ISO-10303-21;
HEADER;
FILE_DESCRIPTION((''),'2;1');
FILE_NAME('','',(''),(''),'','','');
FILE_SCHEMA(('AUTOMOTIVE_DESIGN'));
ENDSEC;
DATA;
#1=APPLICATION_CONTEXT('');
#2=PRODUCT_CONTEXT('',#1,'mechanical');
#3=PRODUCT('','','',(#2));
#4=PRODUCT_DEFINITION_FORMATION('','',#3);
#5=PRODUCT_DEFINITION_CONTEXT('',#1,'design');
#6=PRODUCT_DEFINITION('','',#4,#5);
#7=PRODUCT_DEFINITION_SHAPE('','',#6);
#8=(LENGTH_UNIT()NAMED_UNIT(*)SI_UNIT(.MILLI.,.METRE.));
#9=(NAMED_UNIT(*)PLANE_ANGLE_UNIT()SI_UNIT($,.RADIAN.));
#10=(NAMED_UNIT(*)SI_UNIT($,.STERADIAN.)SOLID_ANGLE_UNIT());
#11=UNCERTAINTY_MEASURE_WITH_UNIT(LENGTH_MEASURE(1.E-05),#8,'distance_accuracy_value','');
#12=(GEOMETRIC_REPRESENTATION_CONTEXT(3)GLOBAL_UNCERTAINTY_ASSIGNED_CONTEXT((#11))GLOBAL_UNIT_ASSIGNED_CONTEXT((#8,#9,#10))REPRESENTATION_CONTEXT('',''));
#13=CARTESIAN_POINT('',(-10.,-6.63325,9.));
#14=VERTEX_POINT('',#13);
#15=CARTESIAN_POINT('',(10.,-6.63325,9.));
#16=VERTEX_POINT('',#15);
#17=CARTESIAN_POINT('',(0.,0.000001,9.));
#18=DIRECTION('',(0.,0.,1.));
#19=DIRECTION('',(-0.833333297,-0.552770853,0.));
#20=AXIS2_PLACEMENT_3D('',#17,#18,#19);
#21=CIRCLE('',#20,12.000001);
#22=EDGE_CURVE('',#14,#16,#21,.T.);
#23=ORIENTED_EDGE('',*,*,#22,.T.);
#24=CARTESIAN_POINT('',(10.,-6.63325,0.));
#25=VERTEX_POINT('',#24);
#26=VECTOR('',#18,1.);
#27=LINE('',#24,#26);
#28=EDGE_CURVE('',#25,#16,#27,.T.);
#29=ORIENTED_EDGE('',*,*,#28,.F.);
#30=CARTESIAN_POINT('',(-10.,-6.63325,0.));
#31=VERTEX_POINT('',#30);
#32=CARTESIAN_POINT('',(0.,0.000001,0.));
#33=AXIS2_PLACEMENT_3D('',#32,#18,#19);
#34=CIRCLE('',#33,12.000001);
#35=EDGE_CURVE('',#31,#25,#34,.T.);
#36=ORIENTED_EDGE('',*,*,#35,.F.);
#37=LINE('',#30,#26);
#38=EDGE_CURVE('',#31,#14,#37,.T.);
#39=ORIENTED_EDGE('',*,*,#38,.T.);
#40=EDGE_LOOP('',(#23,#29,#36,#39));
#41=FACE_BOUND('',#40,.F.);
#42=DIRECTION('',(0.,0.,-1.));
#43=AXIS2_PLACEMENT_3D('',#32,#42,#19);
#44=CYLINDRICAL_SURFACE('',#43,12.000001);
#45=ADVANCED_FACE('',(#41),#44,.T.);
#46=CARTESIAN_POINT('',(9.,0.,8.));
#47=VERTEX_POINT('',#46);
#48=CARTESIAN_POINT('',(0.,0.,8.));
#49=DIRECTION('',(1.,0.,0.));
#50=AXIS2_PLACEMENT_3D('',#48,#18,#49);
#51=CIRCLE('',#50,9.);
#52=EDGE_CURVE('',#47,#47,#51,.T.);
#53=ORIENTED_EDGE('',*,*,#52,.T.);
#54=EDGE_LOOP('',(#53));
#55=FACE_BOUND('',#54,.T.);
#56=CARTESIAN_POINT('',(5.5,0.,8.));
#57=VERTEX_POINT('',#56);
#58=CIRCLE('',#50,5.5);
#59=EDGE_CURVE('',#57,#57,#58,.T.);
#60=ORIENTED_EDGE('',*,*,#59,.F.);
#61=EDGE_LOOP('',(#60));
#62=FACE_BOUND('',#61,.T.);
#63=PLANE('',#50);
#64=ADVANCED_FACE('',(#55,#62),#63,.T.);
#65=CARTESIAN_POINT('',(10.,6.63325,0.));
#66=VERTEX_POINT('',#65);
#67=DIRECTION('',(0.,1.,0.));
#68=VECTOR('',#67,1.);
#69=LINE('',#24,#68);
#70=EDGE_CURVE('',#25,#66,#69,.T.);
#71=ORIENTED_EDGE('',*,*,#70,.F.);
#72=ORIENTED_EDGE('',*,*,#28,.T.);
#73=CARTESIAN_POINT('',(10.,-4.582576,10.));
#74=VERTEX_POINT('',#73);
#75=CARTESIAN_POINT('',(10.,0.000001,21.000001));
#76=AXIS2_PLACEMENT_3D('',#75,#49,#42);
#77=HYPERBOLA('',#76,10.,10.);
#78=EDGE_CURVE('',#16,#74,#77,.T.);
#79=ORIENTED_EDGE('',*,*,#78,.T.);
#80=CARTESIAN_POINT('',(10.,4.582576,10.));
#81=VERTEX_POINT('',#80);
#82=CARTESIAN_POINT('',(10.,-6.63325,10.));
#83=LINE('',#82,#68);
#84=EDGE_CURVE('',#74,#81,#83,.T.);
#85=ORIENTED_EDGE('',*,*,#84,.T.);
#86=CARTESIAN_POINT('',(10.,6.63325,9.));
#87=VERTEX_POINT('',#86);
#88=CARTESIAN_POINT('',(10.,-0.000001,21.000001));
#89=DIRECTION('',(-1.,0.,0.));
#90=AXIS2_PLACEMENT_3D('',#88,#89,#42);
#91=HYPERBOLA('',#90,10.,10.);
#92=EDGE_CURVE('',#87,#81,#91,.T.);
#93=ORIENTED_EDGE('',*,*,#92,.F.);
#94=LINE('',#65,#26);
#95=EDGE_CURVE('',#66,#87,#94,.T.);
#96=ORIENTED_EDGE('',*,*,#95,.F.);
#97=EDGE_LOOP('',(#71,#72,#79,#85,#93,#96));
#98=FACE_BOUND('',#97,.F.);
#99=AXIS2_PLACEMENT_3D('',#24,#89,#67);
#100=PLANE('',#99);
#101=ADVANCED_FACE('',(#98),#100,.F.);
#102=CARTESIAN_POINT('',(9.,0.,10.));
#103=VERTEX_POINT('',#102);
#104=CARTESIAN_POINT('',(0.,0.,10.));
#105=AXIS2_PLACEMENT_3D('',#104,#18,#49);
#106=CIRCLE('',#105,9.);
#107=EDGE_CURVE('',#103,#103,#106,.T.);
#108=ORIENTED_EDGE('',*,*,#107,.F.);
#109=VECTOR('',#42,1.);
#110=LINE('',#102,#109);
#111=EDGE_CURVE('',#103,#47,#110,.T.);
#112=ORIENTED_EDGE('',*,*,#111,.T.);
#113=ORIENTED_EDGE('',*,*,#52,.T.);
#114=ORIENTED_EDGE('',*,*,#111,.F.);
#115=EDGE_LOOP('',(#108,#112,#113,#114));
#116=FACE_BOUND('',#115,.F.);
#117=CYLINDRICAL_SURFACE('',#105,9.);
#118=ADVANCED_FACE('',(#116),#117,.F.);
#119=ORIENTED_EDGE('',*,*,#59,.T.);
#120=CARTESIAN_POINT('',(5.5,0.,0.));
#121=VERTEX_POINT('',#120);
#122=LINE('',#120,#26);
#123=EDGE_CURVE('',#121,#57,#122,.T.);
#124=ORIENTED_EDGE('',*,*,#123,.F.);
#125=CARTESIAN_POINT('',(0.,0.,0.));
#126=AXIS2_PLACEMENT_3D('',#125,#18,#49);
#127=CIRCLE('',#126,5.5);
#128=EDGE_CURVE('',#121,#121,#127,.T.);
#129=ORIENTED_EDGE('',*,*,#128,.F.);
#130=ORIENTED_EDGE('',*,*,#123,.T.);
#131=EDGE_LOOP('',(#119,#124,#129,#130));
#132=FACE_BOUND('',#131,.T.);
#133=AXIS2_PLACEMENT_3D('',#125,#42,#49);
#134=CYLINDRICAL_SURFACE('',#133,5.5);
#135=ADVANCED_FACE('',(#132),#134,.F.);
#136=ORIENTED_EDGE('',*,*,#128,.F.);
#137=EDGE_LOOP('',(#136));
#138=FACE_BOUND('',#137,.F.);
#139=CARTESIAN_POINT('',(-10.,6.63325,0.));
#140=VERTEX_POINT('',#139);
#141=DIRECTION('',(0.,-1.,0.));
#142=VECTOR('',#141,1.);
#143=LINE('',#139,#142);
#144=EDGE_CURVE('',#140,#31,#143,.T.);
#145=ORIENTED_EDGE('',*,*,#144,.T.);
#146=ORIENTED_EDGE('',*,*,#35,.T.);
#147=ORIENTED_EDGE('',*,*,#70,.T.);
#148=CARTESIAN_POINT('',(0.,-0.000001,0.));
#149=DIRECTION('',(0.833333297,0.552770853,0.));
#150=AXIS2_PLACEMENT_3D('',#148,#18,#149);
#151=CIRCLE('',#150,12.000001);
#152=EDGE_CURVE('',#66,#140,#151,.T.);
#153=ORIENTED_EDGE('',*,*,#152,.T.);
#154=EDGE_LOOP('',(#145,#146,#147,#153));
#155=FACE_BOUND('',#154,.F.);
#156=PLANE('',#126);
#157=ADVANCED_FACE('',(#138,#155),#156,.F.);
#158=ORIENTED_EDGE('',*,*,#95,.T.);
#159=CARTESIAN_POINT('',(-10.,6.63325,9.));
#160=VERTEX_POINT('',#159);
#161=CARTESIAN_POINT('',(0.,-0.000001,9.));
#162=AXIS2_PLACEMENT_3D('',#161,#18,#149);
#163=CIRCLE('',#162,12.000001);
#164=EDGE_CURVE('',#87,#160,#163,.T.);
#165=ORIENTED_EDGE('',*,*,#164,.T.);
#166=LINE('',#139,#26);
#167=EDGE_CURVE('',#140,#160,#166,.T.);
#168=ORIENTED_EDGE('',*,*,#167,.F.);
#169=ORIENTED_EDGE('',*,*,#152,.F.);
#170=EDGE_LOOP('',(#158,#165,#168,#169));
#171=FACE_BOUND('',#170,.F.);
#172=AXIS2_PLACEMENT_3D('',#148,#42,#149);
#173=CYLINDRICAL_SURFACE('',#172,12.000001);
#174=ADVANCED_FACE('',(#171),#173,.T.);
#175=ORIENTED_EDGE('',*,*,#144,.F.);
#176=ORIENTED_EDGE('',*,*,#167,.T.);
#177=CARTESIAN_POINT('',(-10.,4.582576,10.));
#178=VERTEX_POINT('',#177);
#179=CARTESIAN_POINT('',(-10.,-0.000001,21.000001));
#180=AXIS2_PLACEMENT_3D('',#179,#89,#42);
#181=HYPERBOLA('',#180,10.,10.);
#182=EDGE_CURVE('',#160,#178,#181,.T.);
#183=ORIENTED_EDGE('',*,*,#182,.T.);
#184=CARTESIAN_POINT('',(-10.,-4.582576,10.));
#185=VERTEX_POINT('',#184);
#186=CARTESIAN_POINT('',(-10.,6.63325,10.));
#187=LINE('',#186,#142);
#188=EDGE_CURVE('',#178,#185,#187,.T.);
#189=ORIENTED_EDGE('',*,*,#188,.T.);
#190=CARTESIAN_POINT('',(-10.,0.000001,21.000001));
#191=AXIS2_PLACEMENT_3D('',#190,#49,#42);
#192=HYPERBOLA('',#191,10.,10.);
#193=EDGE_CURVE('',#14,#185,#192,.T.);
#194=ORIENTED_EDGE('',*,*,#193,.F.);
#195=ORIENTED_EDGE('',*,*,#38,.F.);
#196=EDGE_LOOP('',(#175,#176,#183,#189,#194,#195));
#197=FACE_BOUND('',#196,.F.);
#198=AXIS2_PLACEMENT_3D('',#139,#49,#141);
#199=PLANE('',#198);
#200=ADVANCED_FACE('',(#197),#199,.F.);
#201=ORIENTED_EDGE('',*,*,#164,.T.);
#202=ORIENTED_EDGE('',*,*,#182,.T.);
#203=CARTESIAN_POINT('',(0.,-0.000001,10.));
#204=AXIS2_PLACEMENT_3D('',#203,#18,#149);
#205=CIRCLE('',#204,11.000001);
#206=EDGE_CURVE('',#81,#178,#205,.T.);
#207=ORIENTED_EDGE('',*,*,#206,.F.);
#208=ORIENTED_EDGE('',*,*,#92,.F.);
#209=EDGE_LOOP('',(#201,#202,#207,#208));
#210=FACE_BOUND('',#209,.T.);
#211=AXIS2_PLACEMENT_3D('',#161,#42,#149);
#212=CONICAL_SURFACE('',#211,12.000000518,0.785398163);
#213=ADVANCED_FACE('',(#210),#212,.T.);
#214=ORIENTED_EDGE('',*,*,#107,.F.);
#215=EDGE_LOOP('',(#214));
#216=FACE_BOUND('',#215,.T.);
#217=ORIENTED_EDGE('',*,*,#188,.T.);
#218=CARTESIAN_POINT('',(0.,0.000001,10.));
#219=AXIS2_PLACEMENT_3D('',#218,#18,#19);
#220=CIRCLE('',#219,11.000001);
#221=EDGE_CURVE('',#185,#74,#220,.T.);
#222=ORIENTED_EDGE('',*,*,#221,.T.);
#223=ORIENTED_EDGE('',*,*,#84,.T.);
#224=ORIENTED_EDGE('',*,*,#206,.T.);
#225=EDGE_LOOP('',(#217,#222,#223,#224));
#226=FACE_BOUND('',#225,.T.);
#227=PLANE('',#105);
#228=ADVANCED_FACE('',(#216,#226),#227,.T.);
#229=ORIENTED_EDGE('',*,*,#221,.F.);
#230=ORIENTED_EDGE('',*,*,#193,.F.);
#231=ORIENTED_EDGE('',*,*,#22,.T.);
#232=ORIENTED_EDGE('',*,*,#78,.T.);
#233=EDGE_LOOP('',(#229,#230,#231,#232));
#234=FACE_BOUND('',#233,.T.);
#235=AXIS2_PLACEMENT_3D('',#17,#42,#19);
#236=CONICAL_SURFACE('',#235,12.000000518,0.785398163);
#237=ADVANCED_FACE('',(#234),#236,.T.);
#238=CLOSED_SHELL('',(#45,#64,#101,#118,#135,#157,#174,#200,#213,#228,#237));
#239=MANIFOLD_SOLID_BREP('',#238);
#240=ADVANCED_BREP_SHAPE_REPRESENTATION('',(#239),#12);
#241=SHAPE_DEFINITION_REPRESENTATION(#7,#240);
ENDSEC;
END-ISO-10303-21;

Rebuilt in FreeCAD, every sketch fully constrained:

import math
import FreeCAD as App
import Part
import Sketcher

V = App.Vector
Q = App.Units.Quantity


def edges_at(feature, points):
    """Names of the edges that pass closest to the given points."""
    edges = feature.Shape.Edges
    near = lambda p: min(range(len(edges)), key=lambda i: edges[i].distToShape(Part.Vertex(*p))[0])
    return sorted({f"Edge{near(p) + 1}" for p in points})

doc = App.newDocument("Part")
params = doc.addObject("Spreadsheet::Sheet", "Params")
for row, (alias, value) in enumerate([
    ("sketch1_diameter", "11 mm"),
    ("sketch1_radius", "12.000001 mm"),
    ("pad1_length", "10 mm"),
    ("sketch2_diameter", "18 mm"),
    ("sketch2_diameter2", "11 mm"),
    ("pocket1_length", "2 mm"),
    ("chamfer_size", "1 mm"),
], start=1):
    params.set(f"A{row}", alias)
    params.set(f"B{row}", "=" + value)
    params.setAlias(f"B{row}", alias)

body = doc.addObject("PartDesign::Body", "Body")

sketch1 = doc.addObject("Sketcher::SketchObject", "Sketch")
body.addObject(sketch1)
sketch1.AttachmentSupport = (doc.XY_Plane, [""])
sketch1.MapMode = "FlatFace"
sketch1.addGeometry([
    Part.LineSegment(V(10, -7, 0), V(10, 7, 0)),
    Part.ArcOfCircle(Part.Circle(V(0, 0, 0), V(0, 0, 1), 12), math.radians(34), math.radians(146)),
    Part.LineSegment(V(-10, 7, 0), V(-10, -7, 0)),
    Part.ArcOfCircle(Part.Circle(V(0, 0, 0), V(0, 0, 1), 12), math.radians(-146), math.radians(-34)),
    Part.Circle(V(0, 0, 0), V(0, 0, 1), 6),
], False)
sketch1.addConstraint([
    Sketcher.Constraint("Coincident", 0, 2, 1, 1),
    Sketcher.Constraint("Coincident", 1, 2, 2, 1),
    Sketcher.Constraint("Coincident", 2, 2, 3, 1),
    Sketcher.Constraint("Coincident", 3, 2, 0, 1),
    Sketcher.Constraint("Vertical", 0),
    Sketcher.Constraint("Vertical", 2),
    Sketcher.Constraint("Coincident", 1, 3, -1, 1),
    Sketcher.Constraint("Coincident", 3, 3, -1, 1),
    Sketcher.Constraint("Coincident", 4, 3, -1, 1),
    Sketcher.Constraint("Equal", 1, 3),
    Sketcher.Constraint("Horizontal", 0, 2, 1, 2),
    Sketcher.Constraint("Diameter", 4, Q("11 mm")),
    Sketcher.Constraint("Radius", 1, Q("12.000001 mm")),
    Sketcher.Constraint("DistanceX", -1, 1, 0, 2, Q("10 mm")),
])
sketch1.setExpression("Constraints[11]", "Params.sketch1_diameter")
sketch1.setExpression("Constraints[12]", "Params.sketch1_radius")
pad1 = doc.addObject("PartDesign::Pad", "Pad")
body.addObject(pad1)
pad1.Profile = sketch1
pad1.setExpression("Length", "Params.pad1_length")

sketch2 = doc.addObject("Sketcher::SketchObject", "Sketch001")
body.addObject(sketch2)
sketch2.AttachmentSupport = (doc.XY_Plane, [""])
sketch2.MapMode = "FlatFace"
sketch2.AttachmentOffset = App.Placement(V(0, 0, 10), App.Rotation())
sketch2.addGeometry([
    Part.Circle(V(0, 0, 0), V(0, 0, 1), 9),
    Part.Circle(V(0, 0, 0), V(0, 0, 1), 6),
], False)
sketch2.addConstraint([
    Sketcher.Constraint("Coincident", 0, 3, -1, 1),
    Sketcher.Constraint("Coincident", 1, 3, -1, 1),
    Sketcher.Constraint("Diameter", 0, Q("18 mm")),
    Sketcher.Constraint("Diameter", 1, Q("11 mm")),
])
sketch2.setExpression("Constraints[2]", "Params.sketch2_diameter")
sketch2.setExpression("Constraints[3]", "Params.sketch2_diameter2")
pocket1 = doc.addObject("PartDesign::Pocket", "Pocket")
body.addObject(pocket1)
pocket1.Profile = sketch2
pocket1.setExpression("Length", "Params.pocket1_length")
doc.recompute()

chamfer = doc.addObject("PartDesign::Chamfer", "Chamfer")
body.addObject(chamfer)
chamfer.Base = (pocket1, edges_at(pocket1, [(0, -12, 10), (0, 12, 10)]))
chamfer.setExpression("Size", "Params.chamfer_size")

doc.recompute()
